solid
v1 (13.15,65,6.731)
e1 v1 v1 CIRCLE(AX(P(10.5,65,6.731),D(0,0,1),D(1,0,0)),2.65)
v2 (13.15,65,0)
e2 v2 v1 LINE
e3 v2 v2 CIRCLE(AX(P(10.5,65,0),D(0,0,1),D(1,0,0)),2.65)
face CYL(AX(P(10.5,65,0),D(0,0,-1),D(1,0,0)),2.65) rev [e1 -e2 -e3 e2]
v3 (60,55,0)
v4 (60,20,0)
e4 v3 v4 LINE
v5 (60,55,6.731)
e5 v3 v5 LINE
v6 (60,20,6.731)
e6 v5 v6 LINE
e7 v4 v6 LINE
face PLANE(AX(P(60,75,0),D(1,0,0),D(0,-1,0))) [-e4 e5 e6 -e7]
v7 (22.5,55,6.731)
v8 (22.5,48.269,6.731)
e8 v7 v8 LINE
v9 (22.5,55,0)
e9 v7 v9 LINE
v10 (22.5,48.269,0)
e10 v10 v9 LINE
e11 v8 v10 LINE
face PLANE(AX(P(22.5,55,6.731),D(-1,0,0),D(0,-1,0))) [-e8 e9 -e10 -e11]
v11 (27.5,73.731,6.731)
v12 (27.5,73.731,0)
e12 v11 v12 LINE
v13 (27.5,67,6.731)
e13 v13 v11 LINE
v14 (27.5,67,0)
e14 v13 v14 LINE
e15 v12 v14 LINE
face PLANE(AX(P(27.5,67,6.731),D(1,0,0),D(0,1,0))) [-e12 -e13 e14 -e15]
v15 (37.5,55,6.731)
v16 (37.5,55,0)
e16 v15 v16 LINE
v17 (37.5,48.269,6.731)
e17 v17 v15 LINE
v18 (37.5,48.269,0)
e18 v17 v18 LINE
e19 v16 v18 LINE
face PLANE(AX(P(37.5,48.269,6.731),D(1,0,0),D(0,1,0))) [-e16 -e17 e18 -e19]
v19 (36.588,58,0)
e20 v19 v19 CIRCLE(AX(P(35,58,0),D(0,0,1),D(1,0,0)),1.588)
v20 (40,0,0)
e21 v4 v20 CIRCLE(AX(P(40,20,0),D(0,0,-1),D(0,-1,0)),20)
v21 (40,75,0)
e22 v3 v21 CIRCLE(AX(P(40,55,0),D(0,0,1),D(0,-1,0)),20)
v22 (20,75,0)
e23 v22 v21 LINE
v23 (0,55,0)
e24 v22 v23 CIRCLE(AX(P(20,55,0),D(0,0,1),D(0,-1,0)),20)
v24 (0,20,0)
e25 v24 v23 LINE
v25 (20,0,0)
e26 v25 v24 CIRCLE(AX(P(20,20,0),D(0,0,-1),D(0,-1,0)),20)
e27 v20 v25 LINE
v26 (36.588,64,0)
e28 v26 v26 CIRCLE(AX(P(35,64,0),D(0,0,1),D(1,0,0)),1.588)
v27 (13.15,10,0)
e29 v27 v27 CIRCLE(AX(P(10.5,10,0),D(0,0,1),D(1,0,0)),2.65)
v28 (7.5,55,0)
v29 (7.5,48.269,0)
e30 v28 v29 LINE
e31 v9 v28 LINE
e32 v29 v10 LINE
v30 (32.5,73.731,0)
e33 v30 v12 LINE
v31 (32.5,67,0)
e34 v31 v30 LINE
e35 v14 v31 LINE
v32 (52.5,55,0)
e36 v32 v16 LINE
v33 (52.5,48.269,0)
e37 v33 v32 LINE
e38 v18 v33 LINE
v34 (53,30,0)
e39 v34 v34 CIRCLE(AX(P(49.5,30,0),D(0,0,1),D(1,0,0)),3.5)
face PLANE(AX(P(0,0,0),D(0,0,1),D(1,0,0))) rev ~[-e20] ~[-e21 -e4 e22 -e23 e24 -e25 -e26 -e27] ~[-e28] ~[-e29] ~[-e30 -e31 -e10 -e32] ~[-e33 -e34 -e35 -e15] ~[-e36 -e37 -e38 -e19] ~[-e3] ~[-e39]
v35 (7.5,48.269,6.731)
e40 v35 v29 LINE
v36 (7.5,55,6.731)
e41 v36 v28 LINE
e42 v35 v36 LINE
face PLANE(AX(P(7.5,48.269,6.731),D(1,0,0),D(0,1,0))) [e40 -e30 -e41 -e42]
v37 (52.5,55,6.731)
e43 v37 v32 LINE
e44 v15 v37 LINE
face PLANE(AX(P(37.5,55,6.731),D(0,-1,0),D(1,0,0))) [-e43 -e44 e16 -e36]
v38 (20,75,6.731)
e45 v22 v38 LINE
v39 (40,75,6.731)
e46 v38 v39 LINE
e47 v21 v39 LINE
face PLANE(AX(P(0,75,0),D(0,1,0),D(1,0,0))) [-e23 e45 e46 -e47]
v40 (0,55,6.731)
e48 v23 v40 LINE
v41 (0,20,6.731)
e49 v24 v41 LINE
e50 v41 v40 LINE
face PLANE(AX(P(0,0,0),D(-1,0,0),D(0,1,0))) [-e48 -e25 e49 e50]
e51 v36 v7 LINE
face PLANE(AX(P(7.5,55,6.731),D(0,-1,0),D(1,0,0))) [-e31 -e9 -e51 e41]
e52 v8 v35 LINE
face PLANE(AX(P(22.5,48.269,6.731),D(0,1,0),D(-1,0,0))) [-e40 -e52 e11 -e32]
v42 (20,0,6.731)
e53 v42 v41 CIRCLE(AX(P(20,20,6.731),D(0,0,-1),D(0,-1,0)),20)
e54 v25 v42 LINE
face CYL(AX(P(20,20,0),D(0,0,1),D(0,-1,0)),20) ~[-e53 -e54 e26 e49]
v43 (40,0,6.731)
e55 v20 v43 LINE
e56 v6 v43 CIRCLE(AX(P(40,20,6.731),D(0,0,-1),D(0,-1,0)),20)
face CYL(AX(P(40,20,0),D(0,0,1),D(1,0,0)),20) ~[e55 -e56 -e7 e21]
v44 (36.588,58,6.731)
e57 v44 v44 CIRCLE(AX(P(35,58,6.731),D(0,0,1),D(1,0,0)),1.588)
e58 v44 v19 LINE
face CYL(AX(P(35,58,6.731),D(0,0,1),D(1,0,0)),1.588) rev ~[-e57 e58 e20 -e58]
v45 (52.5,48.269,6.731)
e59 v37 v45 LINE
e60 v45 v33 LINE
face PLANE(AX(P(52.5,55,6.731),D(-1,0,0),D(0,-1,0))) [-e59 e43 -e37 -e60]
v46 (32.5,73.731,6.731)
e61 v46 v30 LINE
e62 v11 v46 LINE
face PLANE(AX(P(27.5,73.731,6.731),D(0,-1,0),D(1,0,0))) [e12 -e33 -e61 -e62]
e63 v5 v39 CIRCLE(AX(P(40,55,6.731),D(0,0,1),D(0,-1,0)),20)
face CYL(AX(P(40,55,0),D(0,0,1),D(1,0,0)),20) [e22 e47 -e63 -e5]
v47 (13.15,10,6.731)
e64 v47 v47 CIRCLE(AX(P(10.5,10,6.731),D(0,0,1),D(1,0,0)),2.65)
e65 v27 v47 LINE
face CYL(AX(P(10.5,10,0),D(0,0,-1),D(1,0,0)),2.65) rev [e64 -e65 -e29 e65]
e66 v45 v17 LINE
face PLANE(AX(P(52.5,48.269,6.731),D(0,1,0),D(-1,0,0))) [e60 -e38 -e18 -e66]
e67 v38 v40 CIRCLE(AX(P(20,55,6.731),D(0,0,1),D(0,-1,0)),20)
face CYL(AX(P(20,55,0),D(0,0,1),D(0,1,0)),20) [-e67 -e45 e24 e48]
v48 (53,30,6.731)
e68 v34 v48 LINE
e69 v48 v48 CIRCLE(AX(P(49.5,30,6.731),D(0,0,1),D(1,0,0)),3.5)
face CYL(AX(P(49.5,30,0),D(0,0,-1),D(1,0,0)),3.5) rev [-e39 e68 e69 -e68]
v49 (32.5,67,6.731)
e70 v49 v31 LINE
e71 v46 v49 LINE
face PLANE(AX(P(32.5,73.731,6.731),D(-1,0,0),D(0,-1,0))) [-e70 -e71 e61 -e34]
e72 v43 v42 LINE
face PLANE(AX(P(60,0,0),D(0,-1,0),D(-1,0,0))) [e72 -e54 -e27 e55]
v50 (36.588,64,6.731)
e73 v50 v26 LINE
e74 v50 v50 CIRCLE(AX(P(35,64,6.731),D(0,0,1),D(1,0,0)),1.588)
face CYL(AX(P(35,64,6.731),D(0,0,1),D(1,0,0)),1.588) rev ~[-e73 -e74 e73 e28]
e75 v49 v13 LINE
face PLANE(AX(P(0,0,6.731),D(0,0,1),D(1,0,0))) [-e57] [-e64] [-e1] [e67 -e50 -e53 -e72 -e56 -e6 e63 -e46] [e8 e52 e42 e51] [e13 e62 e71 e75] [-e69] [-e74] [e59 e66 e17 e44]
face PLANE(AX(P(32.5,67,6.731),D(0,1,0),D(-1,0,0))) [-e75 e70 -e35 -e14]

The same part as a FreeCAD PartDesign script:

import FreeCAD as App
import Part
import Sketcher
from FreeCAD import Vector
Q = App.Units.Quantity


def edges_at(feature, points):
    """Names of the edges that pass closest to the given points."""
    edges = feature.Shape.Edges
    near = lambda p: min(range(len(edges)), key=lambda i: edges[i].distToShape(Part.Vertex(*p))[0])
    return sorted({f"Edge{near(p) + 1}" for p in points})

doc = App.newDocument("Part")
body = doc.addObject("PartDesign::Body", "Body")

sketch1 = body.newObject("Sketcher::SketchObject", "Sketch")
sketch1.AttachmentSupport = (doc.getObject("XY_Plane"), [""])
sketch1.MapMode = "FlatFace"
sketch1.addGeometry([
    Part.LineSegment(Vector(60, 0, 0), Vector(60, 75, 0)),
    Part.LineSegment(Vector(60, 75, 0), Vector(0, 75, 0)),
    Part.LineSegment(Vector(0, 75, 0), Vector(0, 0, 0)),
    Part.LineSegment(Vector(0, 0, 0), Vector(60, 0, 0)),
    Part.Circle(Vector(10.5, 10, 0), Vector(0, 0, 1), 2.6),
    Part.Circle(Vector(49.5, 30, 0), Vector(0, 0, 1), 3.5),
    Part.Circle(Vector(10.5, 65, 0), Vector(0, 0, 1), 2.6),
], False)
sketch1.addConstraint([
    Sketcher.Constraint("Coincident", 0, 2, 1, 1),
    Sketcher.Constraint("Coincident", 1, 2, 2, 1),
    Sketcher.Constraint("Coincident", 2, 2, 3, 1),
    Sketcher.Constraint("Coincident", 3, 2, 0, 1),
    Sketcher.Constraint("Vertical", 0),
    Sketcher.Constraint("Horizontal", 1),
    Sketcher.Constraint("Vertical", 2),
    Sketcher.Constraint("Horizontal", 3),
    Sketcher.Constraint("Coincident", 2, 2, -1, 1),
    Sketcher.Constraint("Equal", 4, 6),
    Sketcher.Constraint("Vertical", 4, 3, 6, 3),
    Sketcher.Constraint("Diameter", 5, Q("7 mm")),
    Sketcher.Constraint("Diameter", 4, Q("5.3 mm")),
    Sketcher.Constraint("DistanceX", 1, 2, 1, 1, Q("60 mm")),
    Sketcher.Constraint("DistanceY", 0, 1, 0, 2, Q("75 mm")),
    Sketcher.Constraint("DistanceY", -1, 1, 4, 3, Q("10 mm")),
    Sketcher.Constraint("DistanceX", 4, 3, 5, 3, Q("39 mm")),
    Sketcher.Constraint("DistanceY", 4, 3, 5, 3, Q("20 mm")),
    Sketcher.Constraint("DistanceY", 4, 3, 6, 3, Q("55 mm")),
    Sketcher.Constraint("DistanceX", -1, 1, 4, 3, Q("10.5 mm")),
])
pad1 = body.newObject("PartDesign::Pad", "Pad")
pad1.Profile = sketch1
pad1.Length = 6.731

sketch2 = body.newObject("Sketcher::SketchObject", "Sketch001")
sketch2.AttachmentSupport = (doc.getObject("XY_Plane"), [""])
sketch2.MapMode = "FlatFace"
sketch2.AttachmentOffset = App.Placement(Vector(0, 0, 6.731), App.Rotation())
sketch2.addGeometry([
    Part.LineSegment(Vector(22.5, 55, 0), Vector(7.5, 55, 0)),
    Part.LineSegment(Vector(7.5, 55, 0), Vector(7.5, 48.3, 0)),
    Part.LineSegment(Vector(7.5, 48.3, 0), Vector(22.5, 48.3, 0)),
    Part.LineSegment(Vector(22.5, 48.3, 0), Vector(22.5, 55, 0)),
    Part.LineSegment(Vector(52.5, 55, 0), Vector(37.5, 55, 0)),
    Part.LineSegment(Vector(37.5, 55, 0), Vector(37.5, 48.3, 0)),
    Part.LineSegment(Vector(37.5, 48.3, 0), Vector(52.5, 48.3, 0)),
    Part.LineSegment(Vector(52.5, 48.3, 0), Vector(52.5, 55, 0)),
    Part.LineSegment(Vector(32.5, 73.7, 0), Vector(27.5, 73.7, 0)),
    Part.LineSegment(Vector(27.5, 73.7, 0), Vector(27.5, 67, 0)),
    Part.LineSegment(Vector(27.5, 67, 0), Vector(32.5, 67, 0)),
    Part.LineSegment(Vector(32.5, 67, 0), Vector(32.5, 73.7, 0)),
    Part.Circle(Vector(35, 64, 0), Vector(0, 0, 1), 1.6),
    Part.Circle(Vector(35, 58, 0), Vector(0, 0, 1), 1.6),
], False)
sketch2.addConstraint([
    Sketcher.Constraint("Coincident", 0, 2, 1, 1),
    Sketcher.Constraint("Coincident", 1, 2, 2, 1),
    Sketcher.Constraint("Coincident", 2, 2, 3, 1),
    Sketcher.Constraint("Coincident", 3, 2, 0, 1),
    Sketcher.Constraint("Coincident", 4, 2, 5, 1),
    Sketcher.Constraint("Coincident", 5, 2, 6, 1),
    Sketcher.Constraint("Coincident", 6, 2, 7, 1),
    Sketcher.Constraint("Coincident", 7, 2, 4, 1),
    Sketcher.Constraint("Coincident", 8, 2, 9, 1),
    Sketcher.Constraint("Coincident", 9, 2, 10, 1),
    Sketcher.Constraint("Coincident", 10, 2, 11, 1),
    Sketcher.Constraint("Coincident", 11, 2, 8, 1),
    Sketcher.Constraint("Horizontal", 0),
    Sketcher.Constraint("Vertical", 1),
    Sketcher.Constraint("Horizontal", 2),
    Sketcher.Constraint("Vertical", 3),
    Sketcher.Constraint("Horizontal", 4),
    Sketcher.Constraint("Vertical", 5),
    Sketcher.Constraint("Horizontal", 6),
    Sketcher.Constraint("Vertical", 7),
    Sketcher.Constraint("Horizontal", 8),
    Sketcher.Constraint("Vertical", 9),
    Sketcher.Constraint("Horizontal", 10),
    Sketcher.Constraint("Vertical", 11),
    Sketcher.Constraint("Equal", 12, 13),
    Sketcher.Constraint("Horizontal", 3, 2, 4, 2),
    Sketcher.Constraint("Horizontal", 2, 2, 5, 2),
    Sketcher.Constraint("Vertical", 12, 3, 13, 3),
    Sketcher.Constraint("Equal", 2, 4),
    Sketcher.Constraint("Equal", 7, 9),
    Sketcher.Constraint("DistanceX", 0, 2, 0, 1, Q("15 mm")),
    Sketcher.Constraint("DistanceX", 8, 2, 8, 1, Q("5 mm")),
    Sketcher.Constraint("Diameter", 12, Q("3.176 mm")),
    Sketcher.Constraint("DistanceY", 13, 3, 12, 3, Q("6 mm")),
    Sketcher.Constraint("DistanceY", 0, 2, 13, 3, Q("3 mm")),
    Sketcher.Constraint("DistanceX", 3, 2, 4, 2, Q("15 mm")),
    Sketcher.Constraint("DistanceX", 3, 2, 8, 2, Q("5 mm")),
    Sketcher.Constraint("DistanceY", 12, 3, 9, 2, Q("3 mm")),
    Sketcher.Constraint("DistanceX", -1, 1, 0, 2, Q("7.5 mm")),
    Sketcher.Constraint("DistanceX", 8, 2, 12, 3, Q("7.5 mm")),
    Sketcher.Constraint("DistanceY", 1, 2, 1, 1, Q("6.731 mm")),
    Sketcher.Constraint("DistanceY", -1, 1, 12, 3, Q("64 mm")),
])
pocket1 = body.newObject("PartDesign::Pocket", "Pocket")
pocket1.Profile = sketch2
pocket1.Type = "UpToFirst"
doc.recompute()

fillet = body.newObject("PartDesign::Fillet", "Fillet")
fillet.Base = (pocket1, edges_at(pocket1, [(60, 0, 3.365), (0, 0, 3.365)]))
fillet.Radius = 20
doc.recompute()

fillet2 = body.newObject("PartDesign::Fillet", "Fillet001")
fillet2.Base = (fillet, edges_at(fillet, [(0, 75, 3.365), (60, 75, 3.365)]))
fillet2.Radius = 20

doc.recompute()
